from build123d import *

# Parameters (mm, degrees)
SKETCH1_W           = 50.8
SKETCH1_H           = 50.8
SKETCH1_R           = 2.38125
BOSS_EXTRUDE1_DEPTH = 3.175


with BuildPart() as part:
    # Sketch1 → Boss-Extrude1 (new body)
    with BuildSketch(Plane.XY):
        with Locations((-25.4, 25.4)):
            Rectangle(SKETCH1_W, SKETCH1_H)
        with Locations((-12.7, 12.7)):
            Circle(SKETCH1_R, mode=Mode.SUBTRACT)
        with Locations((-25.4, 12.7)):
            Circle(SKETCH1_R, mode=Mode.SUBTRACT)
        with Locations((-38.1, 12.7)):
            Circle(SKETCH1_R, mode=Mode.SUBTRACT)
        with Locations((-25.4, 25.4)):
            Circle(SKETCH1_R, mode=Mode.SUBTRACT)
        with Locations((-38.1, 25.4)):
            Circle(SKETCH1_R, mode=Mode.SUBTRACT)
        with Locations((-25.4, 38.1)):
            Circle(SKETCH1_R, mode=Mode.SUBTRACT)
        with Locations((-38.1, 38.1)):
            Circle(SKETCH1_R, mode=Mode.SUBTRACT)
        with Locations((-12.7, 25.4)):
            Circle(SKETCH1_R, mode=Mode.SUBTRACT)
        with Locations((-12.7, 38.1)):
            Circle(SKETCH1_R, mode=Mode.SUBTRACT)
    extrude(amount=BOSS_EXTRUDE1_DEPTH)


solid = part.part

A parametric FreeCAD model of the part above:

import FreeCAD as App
import Part
import Sketcher

V = App.Vector
Q = App.Units.Quantity


def add_polygon(sketch, points):
    """Adds a closed chain of lines whose ends are joined by coincident constraints."""
    first, n = sketch.GeometryCount, len(points)
    for a, b in zip(points, points[1:] + points[:1]):
        sketch.addGeometry(Part.LineSegment(App.Vector(*a, 0), App.Vector(*b, 0)), False)
    for i in range(n):
        sketch.addConstraint(Sketcher.Constraint("Coincident", first + i, 2, first + (i + 1) % n, 1))

doc = App.newDocument("Part")
body = doc.addObject("PartDesign::Body", "Body")

sketch1 = doc.addObject("Sketcher::SketchObject", "Sketch")
body.addObject(sketch1)
sketch1.AttachmentSupport = (doc.XY_Plane, [""])
sketch1.MapMode = "FlatFace"
add_polygon(sketch1, [(-50.8, 50.8), (-50.8, 0), (0, 0), (0, 50.8)])
sketch1.addGeometry(Part.Circle(V(-38.1, 12.7, 0), V(0, 0, 1), 2.38125), False)
sketch1.addGeometry(Part.Circle(V(-25.4, 12.7, 0), V(0, 0, 1), 2.38125), False)
sketch1.addGeometry(Part.Circle(V(-12.7, 12.7, 0), V(0, 0, 1), 2.38125), False)
sketch1.addGeometry(Part.Circle(V(-38.1, 25.4, 0), V(0, 0, 1), 2.38125), False)
sketch1.addGeometry(Part.Circle(V(-38.1, 38.1, 0), V(0, 0, 1), 2.38125), False)
sketch1.addGeometry(Part.Circle(V(-25.4, 25.4, 0), V(0, 0, 1), 2.38125), False)
sketch1.addGeometry(Part.Circle(V(-12.7, 25.4, 0), V(0, 0, 1), 2.38125), False)
sketch1.addGeometry(Part.Circle(V(-25.4, 38.1, 0), V(0, 0, 1), 2.38125), False)
sketch1.addGeometry(Part.Circle(V(-12.7, 38.1, 0), V(0, 0, 1), 2.38125), False)
sketch1.addConstraint(Sketcher.Constraint("Vertical", 0))
sketch1.addConstraint(Sketcher.Constraint("Horizontal", 1))
sketch1.addConstraint(Sketcher.Constraint("Vertical", 2))
sketch1.addConstraint(Sketcher.Constraint("Horizontal", 3))
sketch1.addConstraint(Sketcher.Constraint("Coincident", 1, 2, -1, 1))
sketch1.addConstraint(Sketcher.Constraint("Equal", 4, 5))
sketch1.addConstraint(Sketcher.Constraint("Equal", 5, 6))
sketch1.addConstraint(Sketcher.Constraint("Equal", 6, 7))
sketch1.addConstraint(Sketcher.Constraint("Equal", 7, 8))
sketch1.addConstraint(Sketcher.Constraint("Equal", 8, 9))
sketch1.addConstraint(Sketcher.Constraint("Equal", 9, 10))
sketch1.addConstraint(Sketcher.Constraint("Equal", 10, 11))
sketch1.addConstraint(Sketcher.Constraint("Equal", 11, 12))
sketch1.addConstraint(Sketcher.Constraint("Horizontal", 4, 3, 5, 3))
sketch1.addConstraint(Sketcher.Constraint("Horizontal", 5, 3, 6, 3))
sketch1.addConstraint(Sketcher.Constraint("Horizontal", 7, 3, 9, 3))
sketch1.addConstraint(Sketcher.Constraint("Horizontal", 9, 3, 10, 3))
sketch1.addConstraint(Sketcher.Constraint("Horizontal", 8, 3, 11, 3))
sketch1.addConstraint(Sketcher.Constraint("Horizontal", 11, 3, 12, 3))
sketch1.addConstraint(Sketcher.Constraint("Vertical", 4, 3, 7, 3))
sketch1.addConstraint(Sketcher.Constraint("Vertical", 7, 3, 8, 3))
sketch1.addConstraint(Sketcher.Constraint("Vertical", 5, 3, 9, 3))
sketch1.addConstraint(Sketcher.Constraint("Vertical", 6, 3, 10, 3))
sketch1.addConstraint(Sketcher.Constraint("Vertical", 9, 3, 11, 3))
sketch1.addConstraint(Sketcher.Constraint("Vertical", 10, 3, 12, 3))
sketch1.addConstraint(Sketcher.Constraint("Equal", 3, 0))
sketch1.addConstraint(Sketcher.Constraint("DistanceX", 1, 1, 1, 2, Q("2 in")))
sketch1.addConstraint(Sketcher.Constraint("Diameter", 4, Q("0.1875 in")))
sketch1.addConstraint(Sketcher.Constraint("DistanceX", 5, 3, -1, 1, Q("1 in")))
sketch1.addConstraint(Sketcher.Constraint("DistanceY", -1, 1, 7, 3, Q("1 in")))
sketch1.addConstraint(Sketcher.Constraint("DistanceX", 4, 3, 6, 3, Q("1 in")))
sketch1.addConstraint(Sketcher.Constraint("DistanceY", 4, 3, 8, 3, Q("1 in")))
sketch1.addConstraint(Sketcher.Constraint("DistanceX", 4, 3, -1, 1, Q("1.5 in")))
sketch1.addConstraint(Sketcher.Constraint("DistanceY", -1, 1, 4, 3, Q("0.5 in")))
pad1 = doc.addObject("PartDesign::Pad", "Pad")
body.addObject(pad1)
pad1.Profile = sketch1
pad1.Length = Q("0.125 in")

doc.recompute()
